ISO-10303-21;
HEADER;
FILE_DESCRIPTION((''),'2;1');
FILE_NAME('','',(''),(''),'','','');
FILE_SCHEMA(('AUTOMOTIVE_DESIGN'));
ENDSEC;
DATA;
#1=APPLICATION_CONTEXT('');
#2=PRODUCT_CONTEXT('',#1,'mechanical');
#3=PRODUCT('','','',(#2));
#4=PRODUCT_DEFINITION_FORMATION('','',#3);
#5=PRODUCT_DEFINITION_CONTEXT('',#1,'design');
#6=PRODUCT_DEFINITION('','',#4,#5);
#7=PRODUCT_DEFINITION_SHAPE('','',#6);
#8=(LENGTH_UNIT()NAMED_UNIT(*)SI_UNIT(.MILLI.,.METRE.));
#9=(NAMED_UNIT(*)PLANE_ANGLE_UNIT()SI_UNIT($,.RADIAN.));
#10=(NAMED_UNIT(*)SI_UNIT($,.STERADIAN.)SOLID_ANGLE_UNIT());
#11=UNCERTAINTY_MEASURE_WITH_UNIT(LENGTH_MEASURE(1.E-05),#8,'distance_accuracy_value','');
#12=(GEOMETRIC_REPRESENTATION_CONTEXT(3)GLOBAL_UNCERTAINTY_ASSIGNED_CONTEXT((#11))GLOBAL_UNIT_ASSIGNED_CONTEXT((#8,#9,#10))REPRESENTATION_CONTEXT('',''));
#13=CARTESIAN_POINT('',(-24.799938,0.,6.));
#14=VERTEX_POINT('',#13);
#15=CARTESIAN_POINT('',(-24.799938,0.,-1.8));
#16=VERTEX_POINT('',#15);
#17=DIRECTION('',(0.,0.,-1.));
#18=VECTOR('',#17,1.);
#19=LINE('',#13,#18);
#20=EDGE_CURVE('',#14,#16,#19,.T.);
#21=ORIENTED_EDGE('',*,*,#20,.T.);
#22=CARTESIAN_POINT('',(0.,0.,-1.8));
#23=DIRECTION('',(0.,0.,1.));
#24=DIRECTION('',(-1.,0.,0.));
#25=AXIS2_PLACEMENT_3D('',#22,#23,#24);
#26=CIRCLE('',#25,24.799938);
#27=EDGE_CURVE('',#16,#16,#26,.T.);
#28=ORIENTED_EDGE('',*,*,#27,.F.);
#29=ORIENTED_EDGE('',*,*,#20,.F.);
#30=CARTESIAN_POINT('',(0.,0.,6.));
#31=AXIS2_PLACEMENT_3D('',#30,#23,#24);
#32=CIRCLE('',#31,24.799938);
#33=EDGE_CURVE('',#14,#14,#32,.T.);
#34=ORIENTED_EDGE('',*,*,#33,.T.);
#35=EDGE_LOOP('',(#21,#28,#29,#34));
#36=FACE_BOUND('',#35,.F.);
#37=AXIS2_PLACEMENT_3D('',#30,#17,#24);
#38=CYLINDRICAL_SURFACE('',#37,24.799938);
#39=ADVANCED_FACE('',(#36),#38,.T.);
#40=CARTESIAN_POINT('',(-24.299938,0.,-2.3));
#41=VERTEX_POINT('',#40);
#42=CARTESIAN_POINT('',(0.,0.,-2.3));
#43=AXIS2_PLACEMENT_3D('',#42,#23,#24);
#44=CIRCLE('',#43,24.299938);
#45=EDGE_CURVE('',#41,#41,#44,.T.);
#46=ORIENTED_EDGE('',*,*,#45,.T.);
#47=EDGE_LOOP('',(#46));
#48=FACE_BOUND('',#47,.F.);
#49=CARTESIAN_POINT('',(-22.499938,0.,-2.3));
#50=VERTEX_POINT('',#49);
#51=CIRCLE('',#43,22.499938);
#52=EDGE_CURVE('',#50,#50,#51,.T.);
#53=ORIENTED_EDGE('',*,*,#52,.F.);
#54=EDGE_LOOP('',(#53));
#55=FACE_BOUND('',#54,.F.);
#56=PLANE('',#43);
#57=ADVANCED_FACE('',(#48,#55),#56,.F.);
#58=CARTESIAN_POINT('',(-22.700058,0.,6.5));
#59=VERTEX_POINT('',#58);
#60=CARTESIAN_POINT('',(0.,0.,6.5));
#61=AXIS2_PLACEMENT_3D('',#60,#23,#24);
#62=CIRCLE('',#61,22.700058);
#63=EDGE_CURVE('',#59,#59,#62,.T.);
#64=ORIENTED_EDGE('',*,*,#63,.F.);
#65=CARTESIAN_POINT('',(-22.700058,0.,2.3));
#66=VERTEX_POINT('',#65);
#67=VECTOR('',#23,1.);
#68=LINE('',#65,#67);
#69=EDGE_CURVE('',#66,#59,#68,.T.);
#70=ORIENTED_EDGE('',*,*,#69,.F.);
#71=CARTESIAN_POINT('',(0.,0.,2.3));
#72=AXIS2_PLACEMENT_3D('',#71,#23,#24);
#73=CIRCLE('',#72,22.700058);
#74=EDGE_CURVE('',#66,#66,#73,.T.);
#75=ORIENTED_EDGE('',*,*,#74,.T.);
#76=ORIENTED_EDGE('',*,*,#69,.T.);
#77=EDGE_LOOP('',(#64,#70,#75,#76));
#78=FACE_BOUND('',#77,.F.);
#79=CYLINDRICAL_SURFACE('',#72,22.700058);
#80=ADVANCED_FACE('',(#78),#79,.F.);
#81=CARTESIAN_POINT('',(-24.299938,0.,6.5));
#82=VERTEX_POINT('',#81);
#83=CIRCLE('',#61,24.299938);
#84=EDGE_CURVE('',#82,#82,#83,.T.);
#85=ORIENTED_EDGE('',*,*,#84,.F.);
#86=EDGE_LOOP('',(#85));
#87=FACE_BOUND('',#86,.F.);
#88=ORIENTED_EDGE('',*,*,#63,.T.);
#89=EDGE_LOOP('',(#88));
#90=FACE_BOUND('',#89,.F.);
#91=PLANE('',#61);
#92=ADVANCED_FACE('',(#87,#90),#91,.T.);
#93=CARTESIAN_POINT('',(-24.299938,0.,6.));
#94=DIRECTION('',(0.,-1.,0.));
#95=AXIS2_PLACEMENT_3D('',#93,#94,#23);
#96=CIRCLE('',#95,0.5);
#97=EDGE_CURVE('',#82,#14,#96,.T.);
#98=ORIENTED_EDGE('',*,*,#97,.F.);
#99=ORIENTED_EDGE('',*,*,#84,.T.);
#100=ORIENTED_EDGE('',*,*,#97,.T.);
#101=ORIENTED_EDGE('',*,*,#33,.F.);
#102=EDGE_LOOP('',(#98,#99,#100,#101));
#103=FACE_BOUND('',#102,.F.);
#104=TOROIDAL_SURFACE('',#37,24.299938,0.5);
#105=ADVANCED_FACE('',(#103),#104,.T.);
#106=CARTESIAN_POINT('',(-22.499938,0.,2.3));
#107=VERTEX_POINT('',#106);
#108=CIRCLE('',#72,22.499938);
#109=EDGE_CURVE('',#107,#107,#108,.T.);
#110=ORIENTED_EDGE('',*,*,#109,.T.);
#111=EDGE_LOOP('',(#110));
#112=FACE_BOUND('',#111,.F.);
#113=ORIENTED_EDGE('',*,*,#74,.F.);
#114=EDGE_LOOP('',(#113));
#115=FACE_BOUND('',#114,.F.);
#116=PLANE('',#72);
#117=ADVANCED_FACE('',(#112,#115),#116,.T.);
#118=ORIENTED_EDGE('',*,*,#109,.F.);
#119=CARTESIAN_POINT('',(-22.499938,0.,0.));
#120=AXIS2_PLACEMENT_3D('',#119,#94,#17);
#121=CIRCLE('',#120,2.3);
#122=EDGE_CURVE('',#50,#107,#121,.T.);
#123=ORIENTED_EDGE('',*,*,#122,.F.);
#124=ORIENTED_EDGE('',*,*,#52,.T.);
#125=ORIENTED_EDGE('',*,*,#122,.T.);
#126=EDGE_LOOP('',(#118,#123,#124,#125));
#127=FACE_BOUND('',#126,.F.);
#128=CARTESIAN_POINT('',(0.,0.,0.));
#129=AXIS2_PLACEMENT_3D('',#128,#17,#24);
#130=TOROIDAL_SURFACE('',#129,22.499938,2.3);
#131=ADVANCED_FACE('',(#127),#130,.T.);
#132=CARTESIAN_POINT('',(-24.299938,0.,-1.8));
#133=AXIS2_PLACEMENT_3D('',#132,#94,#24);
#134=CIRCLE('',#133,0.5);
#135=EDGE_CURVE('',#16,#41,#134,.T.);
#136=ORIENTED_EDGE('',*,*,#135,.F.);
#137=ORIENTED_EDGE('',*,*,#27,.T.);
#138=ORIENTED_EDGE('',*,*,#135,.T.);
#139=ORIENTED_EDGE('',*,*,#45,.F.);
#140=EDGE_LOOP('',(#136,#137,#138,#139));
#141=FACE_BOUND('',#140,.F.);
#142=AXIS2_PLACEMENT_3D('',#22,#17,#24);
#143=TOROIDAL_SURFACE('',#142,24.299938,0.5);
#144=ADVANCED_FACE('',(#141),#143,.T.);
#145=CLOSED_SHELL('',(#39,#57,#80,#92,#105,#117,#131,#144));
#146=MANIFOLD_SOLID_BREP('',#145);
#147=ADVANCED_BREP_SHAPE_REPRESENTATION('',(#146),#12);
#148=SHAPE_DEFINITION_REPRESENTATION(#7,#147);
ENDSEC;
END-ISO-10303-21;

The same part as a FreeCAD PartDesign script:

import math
import FreeCAD as App
import Part
import Sketcher

V = App.Vector

doc = App.newDocument("Part")
body = doc.addObject("PartDesign::Body", "Body")

# Sketch on XZ plane
sketch1 = body.newObject("Sketcher::SketchObject", "Sketch")
sketch1.AttachmentSupport = (doc.getObject("XZ_Plane"), [""])
sketch1.MapMode = "FlatFace"
sketch1.addGeometry([
    Part.LineSegment(V(-24.3, -2.3, 0), V(-22.5, -2.3, 0)),  # 0
    Part.ArcOfCircle(Part.Circle(V(-22.5, 0, 0), V(0, 0, 1), 2.3), math.radians(-90), math.radians(90)),  # 1
    Part.LineSegment(V(-22.5, 2.3, 0), V(-22.7, 2.3, 0)),  # 2
    Part.LineSegment(V(-22.7, 2.3, 0), V(-22.7, 6.5, 0)),  # 3
    Part.LineSegment(V(-22.7, 6.5, 0), V(-24.3, 6.5, 0)),  # 4
    Part.ArcOfCircle(Part.Circle(V(-24.3, 6, 0), V(0, 0, 1), 0.5), math.radians(90), math.radians(180)),  # 5
    Part.LineSegment(V(-24.8, 6, 0), V(-24.8, -1.8, 0)),  # 6
    Part.ArcOfCircle(Part.Circle(V(-24.3, -1.8, 0), V(0, 0, 1), 0.5), math.radians(180), math.radians(270)),  # 7
], False)
sketch1.addConstraint([
    Sketcher.Constraint("Tangent", 0, 2, 1, 1),
    Sketcher.Constraint("Tangent", 1, 2, 2, 1),
    Sketcher.Constraint("Coincident", 2, 2, 3, 1),
    Sketcher.Constraint("Coincident", 3, 2, 4, 1),
    Sketcher.Constraint("Tangent", 4, 2, 5, 1),
    Sketcher.Constraint("Tangent", 5, 2, 6, 1),
    Sketcher.Constraint("Tangent", 6, 2, 7, 1),
    Sketcher.Constraint("Tangent", 7, 2, 0, 1),
    Sketcher.Constraint("Horizontal", 0),
    Sketcher.Constraint("Horizontal", 2),
    Sketcher.Constraint("Vertical", 3),
    Sketcher.Constraint("Horizontal", 4),
    Sketcher.Constraint("Vertical", 6),
    Sketcher.Constraint("Equal", 5, 7),
    Sketcher.Constraint("PointOnObject", 1, 3, -1),
    Sketcher.Constraint("Radius", 1, 2.3),
    Sketcher.Constraint("Radius", 5, 0.5),
    Sketcher.Constraint("DistanceX", 0, 1, 0, 2, 1.8),
    Sketcher.Constraint("DistanceY", 3, 1, 3, 2, 4.2),
    Sketcher.Constraint("DistanceX", 2, 2, 2, 1, 0.200121),
    Sketcher.Constraint("DistanceX", 2, 2, -1, 1, 22.700058),
])
revolution = body.newObject("PartDesign::Revolution", "Revolution")
revolution.Profile = sketch1
revolution.ReferenceAxis = (sketch1, ["V_Axis"])
revolution.Angle = 360

doc.recompute()
